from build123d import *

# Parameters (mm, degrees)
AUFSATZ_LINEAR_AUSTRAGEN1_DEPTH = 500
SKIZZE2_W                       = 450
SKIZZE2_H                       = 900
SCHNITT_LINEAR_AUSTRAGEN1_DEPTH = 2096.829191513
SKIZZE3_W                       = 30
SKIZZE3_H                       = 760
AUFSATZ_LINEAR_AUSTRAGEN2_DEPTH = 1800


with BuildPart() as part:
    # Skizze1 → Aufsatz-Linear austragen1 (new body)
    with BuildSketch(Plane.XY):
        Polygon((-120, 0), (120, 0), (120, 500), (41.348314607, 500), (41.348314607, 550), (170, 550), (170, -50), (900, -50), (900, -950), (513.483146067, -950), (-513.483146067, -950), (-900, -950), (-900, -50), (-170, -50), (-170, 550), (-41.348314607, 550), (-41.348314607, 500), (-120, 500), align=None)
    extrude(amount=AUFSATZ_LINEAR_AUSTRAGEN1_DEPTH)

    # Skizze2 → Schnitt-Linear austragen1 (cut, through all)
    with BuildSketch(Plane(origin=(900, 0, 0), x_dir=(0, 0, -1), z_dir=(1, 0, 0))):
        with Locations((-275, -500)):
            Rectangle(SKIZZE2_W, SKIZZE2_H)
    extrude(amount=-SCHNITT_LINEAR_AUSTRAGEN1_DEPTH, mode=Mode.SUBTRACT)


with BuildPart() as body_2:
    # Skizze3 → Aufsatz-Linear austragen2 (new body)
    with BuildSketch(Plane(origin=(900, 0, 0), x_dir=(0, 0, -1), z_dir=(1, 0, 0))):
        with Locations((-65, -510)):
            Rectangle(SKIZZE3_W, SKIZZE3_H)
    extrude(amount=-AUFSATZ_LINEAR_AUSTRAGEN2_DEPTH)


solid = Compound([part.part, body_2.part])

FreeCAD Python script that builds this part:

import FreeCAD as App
import Part
import Sketcher

V = App.Vector
Q = App.Units.Quantity


def add_polygon(sketch, points):
    """Adds a closed chain of lines whose ends are joined by coincident constraints."""
    first, n = sketch.GeometryCount, len(points)
    for a, b in zip(points, points[1:] + points[:1]):
        sketch.addGeometry(Part.LineSegment(App.Vector(*a, 0), App.Vector(*b, 0)), False)
    for i in range(n):
        sketch.addConstraint(Sketcher.Constraint("Coincident", first + i, 2, first + (i + 1) % n, 1))

doc = App.newDocument("Part")
body = doc.addObject("PartDesign::Body", "Body")

# Sketch on XY plane
sketch1 = body.newObject("Sketcher::SketchObject", "Sketch")
sketch1.AttachmentSupport = (doc.getObject("XY_Plane"), [""])
sketch1.MapMode = "FlatFace"
add_polygon(sketch1, [(120, 0), (-120, 0), (-120, 500), (-41, 500), (-41, 550), (-170, 550), (-170, -50), (-900, -50), (-900, -950), (900, -950), (900, -50), (170, -50), (170, 550), (41, 550), (41, 500), (120, 500)])  # lines 0-15
sketch1.addConstraint([
    Sketcher.Constraint("Horizontal", 0),
    Sketcher.Constraint("Vertical", 1),
    Sketcher.Constraint("Horizontal", 2),
    Sketcher.Constraint("Vertical", 3),
    Sketcher.Constraint("Horizontal", 4),
    Sketcher.Constraint("Vertical", 5),
    Sketcher.Constraint("Horizontal", 6),
    Sketcher.Constraint("Vertical", 7),
    Sketcher.Constraint("Horizontal", 8),
    Sketcher.Constraint("Vertical", 9),
    Sketcher.Constraint("Horizontal", 10),
    Sketcher.Constraint("Vertical", 11),
    Sketcher.Constraint("Horizontal", 12),
    Sketcher.Constraint("Vertical", 13),
    Sketcher.Constraint("Horizontal", 14),
    Sketcher.Constraint("Vertical", 15),
    Sketcher.Constraint("Symmetric", 0, 2, 15, 2, -1, 1),
    Sketcher.Constraint("Symmetric", 6, 2, 9, 2, -2),
    Sketcher.Constraint("Symmetric", 4, 2, 11, 2, -2),
    Sketcher.Constraint("Symmetric", 2, 2, 13, 2, -2),
    Sketcher.Constraint("DistanceX", 0, 2, 0, 1, Q("240 mm")),
    Sketcher.Constraint("DistanceX", 6, 2, 6, 1, Q("730 mm")),
    Sketcher.Constraint("DistanceX", 8, 1, 8, 2, Q("1800 mm")),
    Sketcher.Constraint("DistanceY", 1, 1, 1, 2, Q("500 mm")),
    Sketcher.Constraint("DistanceY", 3, 1, 3, 2, Q("50 mm")),
    Sketcher.Constraint("DistanceY", 5, 2, 5, 1, Q("600 mm")),
    Sketcher.Constraint("DistanceY", 7, 2, 7, 1, Q("900 mm")),
    Sketcher.Constraint("DistanceX", 2, 1, 2, 2, Q("78.651685 mm")),
])
pad1 = body.newObject("PartDesign::Pad", "Pad")
pad1.Profile = sketch1
pad1.Length = 500

# Sketch on YZ plane
sketch2 = body.newObject("Sketcher::SketchObject", "Sketch001")
sketch2.AttachmentSupport = (doc.getObject("YZ_Plane"), [""])
sketch2.MapMode = "FlatFace"
sketch2.AttachmentOffset = App.Placement(V(0, 0, 900), App.Rotation())
add_polygon(sketch2, [(-50, 500), (-950, 500), (-950, 50), (-50, 50)])  # lines 0-3
sketch2.addConstraint([
    Sketcher.Constraint("Horizontal", 0),
    Sketcher.Constraint("Vertical", 1),
    Sketcher.Constraint("Horizontal", 2),
    Sketcher.Constraint("Vertical", 3),
    Sketcher.Constraint("DistanceX", 0, 2, 0, 1, Q("900 mm")),
    Sketcher.Constraint("DistanceY", 1, 2, 1, 1, Q("450 mm")),
    Sketcher.Constraint("DistanceX", 0, 2, -1, 1, Q("950 mm")),
    Sketcher.Constraint("DistanceY", -1, 1, 0, 2, Q("500 mm")),
])
pocket1 = body.newObject("PartDesign::Pocket", "Pocket")
pocket1.Profile = sketch2
pocket1.Type = "ThroughAll"
body2 = doc.addObject("PartDesign::Body", "Body001")

# Sketch on YZ plane
sketch3 = body2.newObject("Sketcher::SketchObject", "Sketch002")
sketch3.AttachmentSupport = (doc.getObject("YZ_Plane001"), [""])
sketch3.MapMode = "FlatFace"
sketch3.AttachmentOffset = App.Placement(V(0, 0, 900), App.Rotation())
add_polygon(sketch3, [(-130, 80), (-890, 80), (-890, 50), (-130, 50)])  # lines 0-3
sketch3.addConstraint([
    Sketcher.Constraint("Horizontal", 0),
    Sketcher.Constraint("Vertical", 1),
    Sketcher.Constraint("Horizontal", 2),
    Sketcher.Constraint("Vertical", 3),
    Sketcher.Constraint("DistanceX", 0, 2, 0, 1, Q("760 mm")),
    Sketcher.Constraint("DistanceY", 1, 2, 1, 1, Q("30 mm")),
    Sketcher.Constraint("DistanceX", 0, 2, -1, 1, Q("890 mm")),
    Sketcher.Constraint("DistanceY", -1, 1, 0, 2, Q("80 mm")),
])
pad2 = body2.newObject("PartDesign::Pad", "Pad001")
pad2.Profile = sketch3
pad2.Length = 1800
pad2.Reversed = True

doc.recompute()
